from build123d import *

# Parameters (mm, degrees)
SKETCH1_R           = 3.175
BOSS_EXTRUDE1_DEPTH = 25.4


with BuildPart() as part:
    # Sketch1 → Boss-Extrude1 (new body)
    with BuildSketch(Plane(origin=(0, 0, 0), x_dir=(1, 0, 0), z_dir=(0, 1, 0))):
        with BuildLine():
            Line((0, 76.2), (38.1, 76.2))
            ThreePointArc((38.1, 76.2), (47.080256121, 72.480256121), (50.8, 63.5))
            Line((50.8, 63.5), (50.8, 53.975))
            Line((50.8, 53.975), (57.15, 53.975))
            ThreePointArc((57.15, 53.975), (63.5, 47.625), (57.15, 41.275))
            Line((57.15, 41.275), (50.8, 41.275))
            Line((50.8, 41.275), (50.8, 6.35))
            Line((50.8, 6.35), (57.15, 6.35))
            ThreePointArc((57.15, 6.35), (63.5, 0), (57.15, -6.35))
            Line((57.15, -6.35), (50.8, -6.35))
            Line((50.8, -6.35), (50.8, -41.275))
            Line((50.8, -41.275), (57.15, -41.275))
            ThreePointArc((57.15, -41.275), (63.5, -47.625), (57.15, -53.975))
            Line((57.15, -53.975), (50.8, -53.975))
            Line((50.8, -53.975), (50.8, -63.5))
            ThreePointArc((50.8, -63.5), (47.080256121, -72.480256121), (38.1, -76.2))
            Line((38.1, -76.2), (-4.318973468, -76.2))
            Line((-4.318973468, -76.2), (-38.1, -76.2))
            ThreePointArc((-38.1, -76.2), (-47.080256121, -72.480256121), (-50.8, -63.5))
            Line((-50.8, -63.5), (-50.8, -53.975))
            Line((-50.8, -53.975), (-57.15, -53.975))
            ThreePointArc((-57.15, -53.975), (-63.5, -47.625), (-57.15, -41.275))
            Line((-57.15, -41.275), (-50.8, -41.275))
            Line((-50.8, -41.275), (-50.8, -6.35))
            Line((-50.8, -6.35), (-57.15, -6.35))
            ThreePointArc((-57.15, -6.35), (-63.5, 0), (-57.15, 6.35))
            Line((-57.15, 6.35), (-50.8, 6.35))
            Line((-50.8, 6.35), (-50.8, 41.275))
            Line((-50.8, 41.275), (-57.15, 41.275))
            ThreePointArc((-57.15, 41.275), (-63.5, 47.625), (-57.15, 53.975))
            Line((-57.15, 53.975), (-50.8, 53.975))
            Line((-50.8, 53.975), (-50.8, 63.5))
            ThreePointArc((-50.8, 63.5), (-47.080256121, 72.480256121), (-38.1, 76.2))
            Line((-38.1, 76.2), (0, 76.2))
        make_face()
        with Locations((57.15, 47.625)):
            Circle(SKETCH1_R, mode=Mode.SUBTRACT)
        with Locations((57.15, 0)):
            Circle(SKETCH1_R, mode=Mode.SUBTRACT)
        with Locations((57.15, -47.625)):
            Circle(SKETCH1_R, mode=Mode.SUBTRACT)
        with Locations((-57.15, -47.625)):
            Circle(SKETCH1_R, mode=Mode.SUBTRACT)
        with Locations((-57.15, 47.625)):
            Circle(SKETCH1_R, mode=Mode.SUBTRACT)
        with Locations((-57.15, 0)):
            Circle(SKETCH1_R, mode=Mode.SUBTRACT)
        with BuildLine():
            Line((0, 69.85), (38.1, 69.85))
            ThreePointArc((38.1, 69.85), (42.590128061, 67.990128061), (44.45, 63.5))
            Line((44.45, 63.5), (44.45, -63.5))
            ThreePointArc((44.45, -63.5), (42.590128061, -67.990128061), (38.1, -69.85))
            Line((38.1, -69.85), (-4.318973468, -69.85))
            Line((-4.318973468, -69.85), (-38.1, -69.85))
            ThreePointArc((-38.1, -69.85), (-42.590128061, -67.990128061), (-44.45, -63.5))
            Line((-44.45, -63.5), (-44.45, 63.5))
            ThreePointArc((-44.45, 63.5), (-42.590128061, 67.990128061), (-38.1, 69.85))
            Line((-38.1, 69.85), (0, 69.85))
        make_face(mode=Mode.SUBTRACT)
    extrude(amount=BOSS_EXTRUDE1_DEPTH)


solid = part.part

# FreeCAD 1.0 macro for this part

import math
import FreeCAD as App
import Part
import Sketcher
from FreeCAD import Vector
Q = App.Units.Quantity

doc = App.newDocument("Part")
body = doc.addObject("PartDesign::Body", "Body")

# Sketch on XZ plane
sketch1 = doc.addObject("Sketcher::SketchObject", "Sketch")
body.addObject(sketch1)
sketch1.AttachmentSupport = (doc.XZ_Plane, [""])
sketch1.MapMode = "FlatFace"
sketch1.addGeometry(Part.ArcOfCircle(Part.Circle(Vector(38.1, -63.5, 0), Vector(0, 0, 1), 12.7), math.radians(-90), math.radians(0)), False)
sketch1.addGeometry(Part.LineSegment(Vector(38.1, -76.2, 0), Vector(-38.1, -76.2, 0)), False)
sketch1.addGeometry(Part.ArcOfCircle(Part.Circle(Vector(-38.1, -63.5, 0), Vector(0, 0, 1), 12.7), math.radians(180), math.radians(270)), False)
sketch1.addGeometry(Part.LineSegment(Vector(-50.8, -63.5, 0), Vector(-50.8, -54, 0)), False)
sketch1.addGeometry(Part.LineSegment(Vector(-50.8, -54, 0), Vector(-57.1, -54, 0)), False)
sketch1.addGeometry(Part.ArcOfCircle(Part.Circle(Vector(-57.1, -47.6, 0), Vector(0, 0, 1), 6.3), math.radians(90), math.radians(270)), False)
sketch1.addGeometry(Part.LineSegment(Vector(-57.1, -41.3, 0), Vector(-50.8, -41.3, 0)), False)
sketch1.addGeometry(Part.LineSegment(Vector(-50.8, -41.3, 0), Vector(-50.8, -6.3, 0)), False)
sketch1.addGeometry(Part.LineSegment(Vector(-50.8, -6.3, 0), Vector(-57.1, -6.3, 0)), False)
sketch1.addGeometry(Part.ArcOfCircle(Part.Circle(Vector(-57.1, 0, 0), Vector(0, 0, 1), 6.3), math.radians(90), math.radians(270)), False)
sketch1.addGeometry(Part.LineSegment(Vector(-57.1, 6.3, 0), Vector(-50.8, 6.3, 0)), False)
sketch1.addGeometry(Part.LineSegment(Vector(-50.8, 6.3, 0), Vector(-50.8, 41.3, 0)), False)
sketch1.addGeometry(Part.LineSegment(Vector(-50.8, 41.3, 0), Vector(-57.1, 41.3, 0)), False)
sketch1.addGeometry(Part.ArcOfCircle(Part.Circle(Vector(-57.1, 47.6, 0), Vector(0, 0, 1), 6.3), math.radians(90), math.radians(270)), False)
sketch1.addGeometry(Part.LineSegment(Vector(-57.1, 54, 0), Vector(-50.8, 54, 0)), False)
sketch1.addGeometry(Part.LineSegment(Vector(-50.8, 54, 0), Vector(-50.8, 63.5, 0)), False)
sketch1.addGeometry(Part.ArcOfCircle(Part.Circle(Vector(-38.1, 63.5, 0), Vector(0, 0, 1), 12.7), math.radians(90), math.radians(180)), False)
sketch1.addGeometry(Part.LineSegment(Vector(-38.1, 76.2, 0), Vector(38.1, 76.2, 0)), False)
sketch1.addGeometry(Part.ArcOfCircle(Part.Circle(Vector(38.1, 63.5, 0), Vector(0, 0, 1), 12.7), math.radians(0), math.radians(90)), False)
sketch1.addGeometry(Part.LineSegment(Vector(50.8, 63.5, 0), Vector(50.8, 54, 0)), False)
sketch1.addGeometry(Part.LineSegment(Vector(50.8, 54, 0), Vector(57.1, 54, 0)), False)
sketch1.addGeometry(Part.ArcOfCircle(Part.Circle(Vector(57.1, 47.6, 0), Vector(0, 0, 1), 6.3), math.radians(-90), math.radians(90)), False)
sketch1.addGeometry(Part.LineSegment(Vector(57.1, 41.3, 0), Vector(50.8, 41.3, 0)), False)
sketch1.addGeometry(Part.LineSegment(Vector(50.8, 41.3, 0), Vector(50.8, 6.3, 0)), False)
sketch1.addGeometry(Part.LineSegment(Vector(50.8, 6.3, 0), Vector(57.1, 6.3, 0)), False)
sketch1.addGeometry(Part.ArcOfCircle(Part.Circle(Vector(57.1, 0, 0), Vector(0, 0, 1), 6.3), math.radians(-90), math.radians(90)), False)
sketch1.addGeometry(Part.LineSegment(Vector(57.1, -6.3, 0), Vector(50.8, -6.3, 0)), False)
sketch1.addGeometry(Part.LineSegment(Vector(50.8, -6.3, 0), Vector(50.8, -41.3, 0)), False)
sketch1.addGeometry(Part.LineSegment(Vector(50.8, -41.3, 0), Vector(57.1, -41.3, 0)), False)
sketch1.addGeometry(Part.ArcOfCircle(Part.Circle(Vector(57.1, -47.6, 0), Vector(0, 0, 1), 6.3), math.radians(-90), math.radians(90)), False)
sketch1.addGeometry(Part.LineSegment(Vector(57.1, -54, 0), Vector(50.8, -54, 0)), False)
sketch1.addGeometry(Part.LineSegment(Vector(50.8, -54, 0), Vector(50.8, -63.5, 0)), False)
sketch1.addGeometry(Part.Circle(Vector(57.1, 47.6, 0), Vector(0, 0, 1), 3.2), False)
sketch1.addGeometry(Part.Circle(Vector(-57.1, 47.6, 0), Vector(0, 0, 1), 3.2), False)
sketch1.addGeometry(Part.Circle(Vector(57.1, 0, 0), Vector(0, 0, 1), 3.2), False)
sketch1.addGeometry(Part.Circle(Vector(57.1, -47.6, 0), Vector(0, 0, 1), 3.2), False)
sketch1.addGeometry(Part.ArcOfCircle(Part.Circle(Vector(38.1, -63.5, 0), Vector(0, 0, 1), 6.3), math.radians(-90), math.radians(0)), False)
sketch1.addGeometry(Part.LineSegment(Vector(44.5, -63.5, 0), Vector(44.5, 63.5, 0)), False)
sketch1.addGeometry(Part.ArcOfCircle(Part.Circle(Vector(38.1, 63.5, 0), Vector(0, 0, 1), 6.3), math.radians(0), math.radians(90)), False)
sketch1.addGeometry(Part.LineSegment(Vector(38.1, 69.8, 0), Vector(-38.1, 69.8, 0)), False)
sketch1.addGeometry(Part.ArcOfCircle(Part.Circle(Vector(-38.1, 63.5, 0), Vector(0, 0, 1), 6.3), math.radians(90), math.radians(180)), False)
sketch1.addGeometry(Part.LineSegment(Vector(-44.5, 63.5, 0), Vector(-44.5, -63.5, 0)), False)
sketch1.addGeometry(Part.ArcOfCircle(Part.Circle(Vector(-38.1, -63.5, 0), Vector(0, 0, 1), 6.3), math.radians(180), math.radians(270)), False)
sketch1.addGeometry(Part.LineSegment(Vector(-38.1, -69.8, 0), Vector(38.1, -69.8, 0)), False)
sketch1.addGeometry(Part.Circle(Vector(-57.1, 0, 0), Vector(0, 0, 1), 3.2), False)
sketch1.addGeometry(Part.Circle(Vector(-57.1, -47.6, 0), Vector(0, 0, 1), 3.2), False)
sketch1.addConstraint(Sketcher.Constraint("Tangent", 0, 1, 1, 1))
sketch1.addConstraint(Sketcher.Constraint("Tangent", 1, 2, 2, 2))
sketch1.addConstraint(Sketcher.Constraint("Tangent", 2, 1, 3, 1))
sketch1.addConstraint(Sketcher.Constraint("Coincident", 3, 2, 4, 1))
sketch1.addConstraint(Sketcher.Constraint("Tangent", 4, 2, 5, 2))
sketch1.addConstraint(Sketcher.Constraint("Tangent", 5, 1, 6, 1))
sketch1.addConstraint(Sketcher.Constraint("Coincident", 6, 2, 7, 1))
sketch1.addConstraint(Sketcher.Constraint("Coincident", 7, 2, 8, 1))
sketch1.addConstraint(Sketcher.Constraint("Tangent", 8, 2, 9, 2))
sketch1.addConstraint(Sketcher.Constraint("Tangent", 9, 1, 10, 1))
sketch1.addConstraint(Sketcher.Constraint("Coincident", 10, 2, 11, 1))
sketch1.addConstraint(Sketcher.Constraint("Coincident", 11, 2, 12, 1))
sketch1.addConstraint(Sketcher.Constraint("Tangent", 12, 2, 13, 2))
sketch1.addConstraint(Sketcher.Constraint("Tangent", 13, 1, 14, 1))
sketch1.addConstraint(Sketcher.Constraint("Coincident", 14, 2, 15, 1))
sketch1.addConstraint(Sketcher.Constraint("Tangent", 15, 2, 16, 2))
sketch1.addConstraint(Sketcher.Constraint("Tangent", 16, 1, 17, 1))
sketch1.addConstraint(Sketcher.Constraint("Tangent", 17, 2, 18, 2))
sketch1.addConstraint(Sketcher.Constraint("Tangent", 18, 1, 19, 1))
sketch1.addConstraint(Sketcher.Constraint("Coincident", 19, 2, 20, 1))
sketch1.addConstraint(Sketcher.Constraint("Tangent", 20, 2, 21, 2))
sketch1.addConstraint(Sketcher.Constraint("Tangent", 21, 1, 22, 1))
sketch1.addConstraint(Sketcher.Constraint("Coincident", 22, 2, 23, 1))
sketch1.addConstraint(Sketcher.Constraint("Coincident", 23, 2, 24, 1))
sketch1.addConstraint(Sketcher.Constraint("Tangent", 24, 2, 25, 2))
sketch1.addConstraint(Sketcher.Constraint("Tangent", 25, 1, 26, 1))
sketch1.addConstraint(Sketcher.Constraint("Coincident", 26, 2, 27, 1))
sketch1.addConstraint(Sketcher.Constraint("Coincident", 27, 2, 28, 1))
sketch1.addConstraint(Sketcher.Constraint("Tangent", 28, 2, 29, 2))
sketch1.addConstraint(Sketcher.Constraint("Tangent", 29, 1, 30, 1))
sketch1.addConstraint(Sketcher.Constraint("Coincident", 30, 2, 31, 1))
sketch1.addConstraint(Sketcher.Constraint("Tangent", 31, 2, 0, 2))
sketch1.addConstraint(Sketcher.Constraint("Tangent", 36, 2, 37, 1))
sketch1.addConstraint(Sketcher.Constraint("Tangent", 37, 2, 38, 1))
sketch1.addConstraint(Sketcher.Constraint("Tangent", 38, 2, 39, 1))
sketch1.addConstraint(Sketcher.Constraint("Tangent", 39, 2, 40, 1))
sketch1.addConstraint(Sketcher.Constraint("Tangent", 40, 2, 41, 1))
sketch1.addConstraint(Sketcher.Constraint("Tangent", 41, 2, 42, 1))
sketch1.addConstraint(Sketcher.Constraint("Tangent", 42, 2, 43, 1))
sketch1.addConstraint(Sketcher.Constraint("Tangent", 43, 2, 36, 1))
sketch1.addConstraint(Sketcher.Constraint("Horizontal", 1))
sketch1.addConstraint(Sketcher.Constraint("Vertical", 3))
sketch1.addConstraint(Sketcher.Constraint("Horizontal", 4))
sketch1.addConstraint(Sketcher.Constraint("Horizontal", 6))
sketch1.addConstraint(Sketcher.Constraint("Vertical", 7))
sketch1.addConstraint(Sketcher.Constraint("Horizontal", 8))
sketch1.addConstraint(Sketcher.Constraint("Horizontal", 10))
sketch1.addConstraint(Sketcher.Constraint("Vertical", 11))
sketch1.addConstraint(Sketcher.Constraint("Horizontal", 12))
sketch1.addConstraint(Sketcher.Constraint("Horizontal", 14))
sketch1.addConstraint(Sketcher.Constraint("Vertical", 15))
sketch1.addConstraint(Sketcher.Constraint("Horizontal", 17))
sketch1.addConstraint(Sketcher.Constraint("Vertical", 19))
sketch1.addConstraint(Sketcher.Constraint("Horizontal", 20))
sketch1.addConstraint(Sketcher.Constraint("Horizontal", 22))
sketch1.addConstraint(Sketcher.Constraint("Vertical", 23))
sketch1.addConstraint(Sketcher.Constraint("Horizontal", 24))
sketch1.addConstraint(Sketcher.Constraint("Horizontal", 26))
sketch1.addConstraint(Sketcher.Constraint("Vertical", 27))
sketch1.addConstraint(Sketcher.Constraint("Horizontal", 28))
sketch1.addConstraint(Sketcher.Constraint("Horizontal", 30))
sketch1.addConstraint(Sketcher.Constraint("Vertical", 31))
sketch1.addConstraint(Sketcher.Constraint("Vertical", 37))
sketch1.addConstraint(Sketcher.Constraint("Horizontal", 39))
sketch1.addConstraint(Sketcher.Constraint("Vertical", 41))
sketch1.addConstraint(Sketcher.Constraint("Horizontal", 43))
sketch1.addConstraint(Sketcher.Constraint("Coincident", 32, 3, 21, 3))
sketch1.addConstraint(Sketcher.Constraint("Coincident", 33, 3, 13, 3))
sketch1.addConstraint(Sketcher.Constraint("Coincident", 34, 3, 25, 3))
sketch1.addConstraint(Sketcher.Constraint("Coincident", 35, 3, 29, 3))
sketch1.addConstraint(Sketcher.Constraint("Coincident", 36, 3, 0, 3))
sketch1.addConstraint(Sketcher.Constraint("Coincident", 38, 3, 18, 3))
sketch1.addConstraint(Sketcher.Constraint("Coincident", 40, 3, 16, 3))
sketch1.addConstraint(Sketcher.Constraint("Coincident", 42, 3, 2, 3))
sketch1.addConstraint(Sketcher.Constraint("Coincident", 44, 3, 9, 3))
sketch1.addConstraint(Sketcher.Constraint("Coincident", 45, 3, 5, 3))
sketch1.addConstraint(Sketcher.Constraint("Equal", 0, 2))
sketch1.addConstraint(Sketcher.Constraint("Equal", 5, 9))
sketch1.addConstraint(Sketcher.Constraint("Equal", 9, 13))
sketch1.addConstraint(Sketcher.Constraint("Equal", 2, 16))
sketch1.addConstraint(Sketcher.Constraint("Equal", 16, 18))
sketch1.addConstraint(Sketcher.Constraint("Equal", 13, 21))
sketch1.addConstraint(Sketcher.Constraint("Equal", 21, 25))
sketch1.addConstraint(Sketcher.Constraint("Equal", 25, 29))
sketch1.addConstraint(Sketcher.Constraint("Equal", 32, 33))
sketch1.addConstraint(Sketcher.Constraint("Equal", 33, 34))
sketch1.addConstraint(Sketcher.Constraint("Equal", 34, 35))
sketch1.addConstraint(Sketcher.Constraint("Equal", 29, 36))
sketch1.addConstraint(Sketcher.Constraint("Equal", 36, 38))
sketch1.addConstraint(Sketcher.Constraint("Equal", 35, 44))
sketch1.addConstraint(Sketcher.Constraint("Equal", 44, 45))
sketch1.addConstraint(Sketcher.Constraint("Symmetric", 0, 3, 16, 3, -1, 1))
sketch1.addConstraint(Sketcher.Constraint("Symmetric", 5, 3, 21, 3, -1, 1))
sketch1.addConstraint(Sketcher.Constraint("Symmetric", 9, 3, 25, 3, -1, 1))
sketch1.addConstraint(Sketcher.Constraint("Symmetric", 13, 3, 29, 3, -1, 1))
sketch1.addConstraint(Sketcher.Constraint("Symmetric", 13, 3, 21, 3, -2))
sketch1.addConstraint(Sketcher.Constraint("Symmetric", 10, 2, 23, 2, -2))
sketch1.addConstraint(Sketcher.Constraint("Vertical", 5, 3, 9, 3))
sketch1.addConstraint(Sketcher.Constraint("Vertical", 3, 2, 6, 2))
sketch1.addConstraint(Sketcher.Constraint("Vertical", 7, 2, 10, 2))
sketch1.addConstraint(Sketcher.Constraint("Vertical", 23, 2, 26, 2))
sketch1.addConstraint(Sketcher.Constraint("Radius", 0, Q("0.5 in")))
sketch1.addConstraint(Sketcher.Constraint("Diameter", 32, Q("0.25 in")))
sketch1.addConstraint(Sketcher.Constraint("DistanceX", 1, 2, 1, 1, Q("3 in")))
sketch1.addConstraint(Sketcher.Constraint("DistanceY", 37, 1, 37, 2, Q("5 in")))
sketch1.addConstraint(Sketcher.Constraint("Radius", 5, Q("0.25 in")))
sketch1.addConstraint(Sketcher.Constraint("DistanceX", 4, 2, 4, 1, Q("0.25 in")))
sketch1.addConstraint(Sketcher.Constraint("DistanceY", 3, 1, 3, 2, Q("0.375 in")))
pad1 = doc.addObject("PartDesign::Pad", "Pad")
body.addObject(pad1)
pad1.Profile = sketch1
pad1.Length = Q("1 in")
pad1.Reversed = True

doc.recompute()
